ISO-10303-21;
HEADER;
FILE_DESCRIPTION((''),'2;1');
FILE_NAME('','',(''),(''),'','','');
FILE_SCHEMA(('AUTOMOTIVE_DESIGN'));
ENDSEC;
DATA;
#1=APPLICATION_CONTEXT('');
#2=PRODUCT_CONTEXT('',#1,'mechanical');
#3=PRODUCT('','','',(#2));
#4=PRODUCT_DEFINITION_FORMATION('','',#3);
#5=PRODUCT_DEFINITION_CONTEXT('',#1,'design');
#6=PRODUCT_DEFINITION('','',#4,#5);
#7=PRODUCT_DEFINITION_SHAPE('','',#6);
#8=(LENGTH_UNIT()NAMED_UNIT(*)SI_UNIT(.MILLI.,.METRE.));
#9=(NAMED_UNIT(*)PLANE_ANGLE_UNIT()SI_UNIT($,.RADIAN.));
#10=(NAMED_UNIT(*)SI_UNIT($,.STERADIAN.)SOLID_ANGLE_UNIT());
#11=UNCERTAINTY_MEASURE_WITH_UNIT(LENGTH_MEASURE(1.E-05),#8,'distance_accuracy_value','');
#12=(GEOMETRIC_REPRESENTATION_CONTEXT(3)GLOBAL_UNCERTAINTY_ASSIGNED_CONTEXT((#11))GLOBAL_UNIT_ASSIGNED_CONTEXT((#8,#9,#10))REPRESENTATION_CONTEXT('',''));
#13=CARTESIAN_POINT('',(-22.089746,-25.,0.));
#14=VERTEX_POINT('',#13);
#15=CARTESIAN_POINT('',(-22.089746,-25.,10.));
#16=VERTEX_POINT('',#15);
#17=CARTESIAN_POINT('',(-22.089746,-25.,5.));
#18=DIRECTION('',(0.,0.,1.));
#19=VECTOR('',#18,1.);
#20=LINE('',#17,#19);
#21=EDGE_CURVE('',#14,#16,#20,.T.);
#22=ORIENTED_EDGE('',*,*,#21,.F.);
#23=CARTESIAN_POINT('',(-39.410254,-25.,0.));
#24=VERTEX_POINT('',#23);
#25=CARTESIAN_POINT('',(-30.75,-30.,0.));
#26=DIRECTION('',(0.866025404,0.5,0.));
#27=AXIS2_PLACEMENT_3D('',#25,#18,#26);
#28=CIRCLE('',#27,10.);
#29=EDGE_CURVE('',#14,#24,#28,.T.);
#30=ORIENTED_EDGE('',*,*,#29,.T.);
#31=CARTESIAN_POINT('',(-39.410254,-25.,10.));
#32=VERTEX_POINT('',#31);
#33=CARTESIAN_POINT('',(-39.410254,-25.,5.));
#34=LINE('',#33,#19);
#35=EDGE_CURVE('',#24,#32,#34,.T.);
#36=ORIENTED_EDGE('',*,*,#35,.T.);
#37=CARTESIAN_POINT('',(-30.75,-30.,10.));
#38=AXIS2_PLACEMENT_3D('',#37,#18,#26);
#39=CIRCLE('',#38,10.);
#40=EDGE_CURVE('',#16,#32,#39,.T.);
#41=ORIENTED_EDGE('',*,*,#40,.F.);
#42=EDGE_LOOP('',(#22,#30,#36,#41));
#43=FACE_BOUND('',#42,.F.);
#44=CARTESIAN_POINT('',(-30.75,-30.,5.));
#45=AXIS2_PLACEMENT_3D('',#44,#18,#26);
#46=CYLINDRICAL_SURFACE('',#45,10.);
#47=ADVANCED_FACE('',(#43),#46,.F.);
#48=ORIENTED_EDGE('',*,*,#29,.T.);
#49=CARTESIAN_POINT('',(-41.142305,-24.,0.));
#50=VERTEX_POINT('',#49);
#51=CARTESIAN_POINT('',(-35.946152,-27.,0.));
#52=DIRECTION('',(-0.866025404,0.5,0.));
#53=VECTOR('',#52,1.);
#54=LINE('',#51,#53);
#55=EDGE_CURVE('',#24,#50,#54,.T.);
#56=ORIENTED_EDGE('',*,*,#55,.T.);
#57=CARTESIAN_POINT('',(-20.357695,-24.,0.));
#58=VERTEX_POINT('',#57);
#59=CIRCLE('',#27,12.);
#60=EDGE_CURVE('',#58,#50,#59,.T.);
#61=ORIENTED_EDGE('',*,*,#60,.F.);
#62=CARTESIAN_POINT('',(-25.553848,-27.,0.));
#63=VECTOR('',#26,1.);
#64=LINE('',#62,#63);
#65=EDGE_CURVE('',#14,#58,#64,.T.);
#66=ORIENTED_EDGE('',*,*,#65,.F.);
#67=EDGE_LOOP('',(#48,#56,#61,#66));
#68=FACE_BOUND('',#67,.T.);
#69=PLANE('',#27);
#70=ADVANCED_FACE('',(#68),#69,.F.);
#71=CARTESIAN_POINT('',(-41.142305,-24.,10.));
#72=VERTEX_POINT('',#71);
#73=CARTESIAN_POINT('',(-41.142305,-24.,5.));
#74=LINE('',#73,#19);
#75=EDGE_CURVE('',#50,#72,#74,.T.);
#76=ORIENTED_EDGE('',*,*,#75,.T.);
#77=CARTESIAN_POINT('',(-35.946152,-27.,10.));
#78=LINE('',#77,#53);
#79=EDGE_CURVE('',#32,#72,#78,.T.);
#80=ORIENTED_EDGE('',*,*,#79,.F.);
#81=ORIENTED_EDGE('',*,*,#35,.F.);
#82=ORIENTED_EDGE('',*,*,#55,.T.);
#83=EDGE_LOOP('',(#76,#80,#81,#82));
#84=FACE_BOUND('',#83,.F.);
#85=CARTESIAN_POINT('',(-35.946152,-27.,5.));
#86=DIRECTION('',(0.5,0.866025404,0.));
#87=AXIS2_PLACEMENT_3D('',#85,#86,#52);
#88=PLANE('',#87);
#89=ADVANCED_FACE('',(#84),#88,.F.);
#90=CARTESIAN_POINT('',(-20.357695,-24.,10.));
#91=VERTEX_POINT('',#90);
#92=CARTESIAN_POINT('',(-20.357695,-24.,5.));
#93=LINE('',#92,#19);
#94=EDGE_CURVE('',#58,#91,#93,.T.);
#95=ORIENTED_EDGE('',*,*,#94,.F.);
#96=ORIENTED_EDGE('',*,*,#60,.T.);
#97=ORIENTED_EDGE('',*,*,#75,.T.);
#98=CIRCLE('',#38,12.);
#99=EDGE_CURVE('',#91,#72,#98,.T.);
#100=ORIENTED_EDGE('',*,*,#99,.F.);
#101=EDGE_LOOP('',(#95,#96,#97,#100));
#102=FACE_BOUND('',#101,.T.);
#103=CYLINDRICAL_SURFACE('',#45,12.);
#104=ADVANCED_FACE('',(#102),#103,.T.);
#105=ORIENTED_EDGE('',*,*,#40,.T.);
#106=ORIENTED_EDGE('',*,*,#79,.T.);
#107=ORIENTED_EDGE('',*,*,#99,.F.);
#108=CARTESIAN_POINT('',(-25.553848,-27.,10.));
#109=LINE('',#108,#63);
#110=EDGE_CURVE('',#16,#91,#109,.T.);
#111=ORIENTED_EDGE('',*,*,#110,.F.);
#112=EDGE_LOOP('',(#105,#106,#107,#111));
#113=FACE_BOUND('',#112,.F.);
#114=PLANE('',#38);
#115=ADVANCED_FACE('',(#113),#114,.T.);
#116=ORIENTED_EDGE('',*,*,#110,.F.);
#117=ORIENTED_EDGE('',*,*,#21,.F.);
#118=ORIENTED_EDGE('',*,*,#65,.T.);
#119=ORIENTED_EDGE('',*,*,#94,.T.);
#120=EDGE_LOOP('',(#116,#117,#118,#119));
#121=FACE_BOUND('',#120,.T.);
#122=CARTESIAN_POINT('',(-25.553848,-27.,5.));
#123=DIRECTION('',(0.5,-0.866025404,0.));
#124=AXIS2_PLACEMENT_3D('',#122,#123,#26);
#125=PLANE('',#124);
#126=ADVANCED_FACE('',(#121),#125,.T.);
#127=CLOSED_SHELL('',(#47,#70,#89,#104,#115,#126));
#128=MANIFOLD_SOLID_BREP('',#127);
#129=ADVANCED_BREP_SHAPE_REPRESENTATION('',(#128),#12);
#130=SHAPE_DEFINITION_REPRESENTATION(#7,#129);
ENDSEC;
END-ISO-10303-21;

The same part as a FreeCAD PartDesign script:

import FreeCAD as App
import Part
import Sketcher
from FreeCAD import Vector
Q = App.Units.Quantity


def add_polygon(sketch, points):
    """Adds a closed chain of lines whose ends are joined by coincident constraints."""
    first, n = sketch.GeometryCount, len(points)
    for a, b in zip(points, points[1:] + points[:1]):
        sketch.addGeometry(Part.LineSegment(App.Vector(*a, 0), App.Vector(*b, 0)), False)
    for i in range(n):
        sketch.addConstraint(Sketcher.Constraint("Coincident", first + i, 2, first + (i + 1) % n, 1))

doc = App.newDocument("Part")
body = doc.addObject("PartDesign::Body", "Body")

# Sketch on XZ plane
sketch1 = doc.addObject("Sketcher::SketchObject", "Sketch")
body.addObject(sketch1)
sketch1.AttachmentSupport = (doc.XZ_Plane, [""])
sketch1.MapMode = "FlatFace"
add_polygon(sketch1, [(0, 10), (0, 0), (10, 0), (10, 10)])  # lines 0-3
sketch1.addConstraint([
    Sketcher.Constraint("Vertical", 0),
    Sketcher.Constraint("Horizontal", 1),
    Sketcher.Constraint("Vertical", 2),
    Sketcher.Constraint("Horizontal", 3),
    Sketcher.Constraint("Coincident", 0, 2, -1, 1),
    Sketcher.Constraint("Equal", 3, 0),
    Sketcher.Constraint("DistanceX", 1, 1, 1, 2, Q("10 mm")),
])
revolution = doc.addObject("PartDesign::Revolution", "Revolution")
body.addObject(revolution)
revolution.Profile = sketch1
revolution.ReferenceAxis = (sketch1, ["V_Axis"])
revolution.Angle = 120
body2 = doc.addObject("PartDesign::Body", "Body001")
doc.recompute()

body.Placement = App.Placement(Vector(-30.75, -30, 0), App.Rotation(Vector(0, 0, 1), 30))
boolean = doc.addObject("PartDesign::Boolean", "Boolean")
body2.addObject(boolean)
boolean.Type = "Fuse"
boolean.addObjects([body])
body3 = doc.addObject("PartDesign::Body", "Body002")

# Sketch on XZ plane
sketch2 = doc.addObject("Sketcher::SketchObject", "Sketch001")
body3.addObject(sketch2)
sketch2.AttachmentSupport = (doc.getObject("XZ_Plane002"), [""])
sketch2.MapMode = "FlatFace"
add_polygon(sketch2, [(0, 10), (0, 0), (12, 0), (12, 10)])  # lines 0-3
sketch2.addConstraint([
    Sketcher.Constraint("Vertical", 0),
    Sketcher.Constraint("Horizontal", 1),
    Sketcher.Constraint("Vertical", 2),
    Sketcher.Constraint("Horizontal", 3),
    Sketcher.Constraint("Coincident", 0, 2, -1, 1),
    Sketcher.Constraint("DistanceX", 1, 1, 1, 2, Q("12 mm")),
    Sketcher.Constraint("DistanceY", 0, 2, 0, 1, Q("10 mm")),
])
revolution2 = doc.addObject("PartDesign::Revolution", "Revolution001")
body3.addObject(revolution2)
revolution2.Profile = sketch2
revolution2.ReferenceAxis = (sketch2, ["V_Axis"])
revolution2.Angle = 120
body4 = doc.addObject("PartDesign::Body", "Body003")
doc.recompute()

body3.Placement = App.Placement(Vector(-30.75, -30, 0), App.Rotation(Vector(0, 0, 1), 30))
boolean2 = doc.addObject("PartDesign::Boolean", "Boolean001")
body4.addObject(boolean2)
boolean2.Type = "Fuse"
boolean2.addObjects([body3])
doc.recompute()

boolean3 = doc.addObject("PartDesign::Boolean", "Boolean002")
body4.addObject(boolean3)
boolean3.Type = "Cut"
boolean3.addObjects([body2])

doc.recompute()
